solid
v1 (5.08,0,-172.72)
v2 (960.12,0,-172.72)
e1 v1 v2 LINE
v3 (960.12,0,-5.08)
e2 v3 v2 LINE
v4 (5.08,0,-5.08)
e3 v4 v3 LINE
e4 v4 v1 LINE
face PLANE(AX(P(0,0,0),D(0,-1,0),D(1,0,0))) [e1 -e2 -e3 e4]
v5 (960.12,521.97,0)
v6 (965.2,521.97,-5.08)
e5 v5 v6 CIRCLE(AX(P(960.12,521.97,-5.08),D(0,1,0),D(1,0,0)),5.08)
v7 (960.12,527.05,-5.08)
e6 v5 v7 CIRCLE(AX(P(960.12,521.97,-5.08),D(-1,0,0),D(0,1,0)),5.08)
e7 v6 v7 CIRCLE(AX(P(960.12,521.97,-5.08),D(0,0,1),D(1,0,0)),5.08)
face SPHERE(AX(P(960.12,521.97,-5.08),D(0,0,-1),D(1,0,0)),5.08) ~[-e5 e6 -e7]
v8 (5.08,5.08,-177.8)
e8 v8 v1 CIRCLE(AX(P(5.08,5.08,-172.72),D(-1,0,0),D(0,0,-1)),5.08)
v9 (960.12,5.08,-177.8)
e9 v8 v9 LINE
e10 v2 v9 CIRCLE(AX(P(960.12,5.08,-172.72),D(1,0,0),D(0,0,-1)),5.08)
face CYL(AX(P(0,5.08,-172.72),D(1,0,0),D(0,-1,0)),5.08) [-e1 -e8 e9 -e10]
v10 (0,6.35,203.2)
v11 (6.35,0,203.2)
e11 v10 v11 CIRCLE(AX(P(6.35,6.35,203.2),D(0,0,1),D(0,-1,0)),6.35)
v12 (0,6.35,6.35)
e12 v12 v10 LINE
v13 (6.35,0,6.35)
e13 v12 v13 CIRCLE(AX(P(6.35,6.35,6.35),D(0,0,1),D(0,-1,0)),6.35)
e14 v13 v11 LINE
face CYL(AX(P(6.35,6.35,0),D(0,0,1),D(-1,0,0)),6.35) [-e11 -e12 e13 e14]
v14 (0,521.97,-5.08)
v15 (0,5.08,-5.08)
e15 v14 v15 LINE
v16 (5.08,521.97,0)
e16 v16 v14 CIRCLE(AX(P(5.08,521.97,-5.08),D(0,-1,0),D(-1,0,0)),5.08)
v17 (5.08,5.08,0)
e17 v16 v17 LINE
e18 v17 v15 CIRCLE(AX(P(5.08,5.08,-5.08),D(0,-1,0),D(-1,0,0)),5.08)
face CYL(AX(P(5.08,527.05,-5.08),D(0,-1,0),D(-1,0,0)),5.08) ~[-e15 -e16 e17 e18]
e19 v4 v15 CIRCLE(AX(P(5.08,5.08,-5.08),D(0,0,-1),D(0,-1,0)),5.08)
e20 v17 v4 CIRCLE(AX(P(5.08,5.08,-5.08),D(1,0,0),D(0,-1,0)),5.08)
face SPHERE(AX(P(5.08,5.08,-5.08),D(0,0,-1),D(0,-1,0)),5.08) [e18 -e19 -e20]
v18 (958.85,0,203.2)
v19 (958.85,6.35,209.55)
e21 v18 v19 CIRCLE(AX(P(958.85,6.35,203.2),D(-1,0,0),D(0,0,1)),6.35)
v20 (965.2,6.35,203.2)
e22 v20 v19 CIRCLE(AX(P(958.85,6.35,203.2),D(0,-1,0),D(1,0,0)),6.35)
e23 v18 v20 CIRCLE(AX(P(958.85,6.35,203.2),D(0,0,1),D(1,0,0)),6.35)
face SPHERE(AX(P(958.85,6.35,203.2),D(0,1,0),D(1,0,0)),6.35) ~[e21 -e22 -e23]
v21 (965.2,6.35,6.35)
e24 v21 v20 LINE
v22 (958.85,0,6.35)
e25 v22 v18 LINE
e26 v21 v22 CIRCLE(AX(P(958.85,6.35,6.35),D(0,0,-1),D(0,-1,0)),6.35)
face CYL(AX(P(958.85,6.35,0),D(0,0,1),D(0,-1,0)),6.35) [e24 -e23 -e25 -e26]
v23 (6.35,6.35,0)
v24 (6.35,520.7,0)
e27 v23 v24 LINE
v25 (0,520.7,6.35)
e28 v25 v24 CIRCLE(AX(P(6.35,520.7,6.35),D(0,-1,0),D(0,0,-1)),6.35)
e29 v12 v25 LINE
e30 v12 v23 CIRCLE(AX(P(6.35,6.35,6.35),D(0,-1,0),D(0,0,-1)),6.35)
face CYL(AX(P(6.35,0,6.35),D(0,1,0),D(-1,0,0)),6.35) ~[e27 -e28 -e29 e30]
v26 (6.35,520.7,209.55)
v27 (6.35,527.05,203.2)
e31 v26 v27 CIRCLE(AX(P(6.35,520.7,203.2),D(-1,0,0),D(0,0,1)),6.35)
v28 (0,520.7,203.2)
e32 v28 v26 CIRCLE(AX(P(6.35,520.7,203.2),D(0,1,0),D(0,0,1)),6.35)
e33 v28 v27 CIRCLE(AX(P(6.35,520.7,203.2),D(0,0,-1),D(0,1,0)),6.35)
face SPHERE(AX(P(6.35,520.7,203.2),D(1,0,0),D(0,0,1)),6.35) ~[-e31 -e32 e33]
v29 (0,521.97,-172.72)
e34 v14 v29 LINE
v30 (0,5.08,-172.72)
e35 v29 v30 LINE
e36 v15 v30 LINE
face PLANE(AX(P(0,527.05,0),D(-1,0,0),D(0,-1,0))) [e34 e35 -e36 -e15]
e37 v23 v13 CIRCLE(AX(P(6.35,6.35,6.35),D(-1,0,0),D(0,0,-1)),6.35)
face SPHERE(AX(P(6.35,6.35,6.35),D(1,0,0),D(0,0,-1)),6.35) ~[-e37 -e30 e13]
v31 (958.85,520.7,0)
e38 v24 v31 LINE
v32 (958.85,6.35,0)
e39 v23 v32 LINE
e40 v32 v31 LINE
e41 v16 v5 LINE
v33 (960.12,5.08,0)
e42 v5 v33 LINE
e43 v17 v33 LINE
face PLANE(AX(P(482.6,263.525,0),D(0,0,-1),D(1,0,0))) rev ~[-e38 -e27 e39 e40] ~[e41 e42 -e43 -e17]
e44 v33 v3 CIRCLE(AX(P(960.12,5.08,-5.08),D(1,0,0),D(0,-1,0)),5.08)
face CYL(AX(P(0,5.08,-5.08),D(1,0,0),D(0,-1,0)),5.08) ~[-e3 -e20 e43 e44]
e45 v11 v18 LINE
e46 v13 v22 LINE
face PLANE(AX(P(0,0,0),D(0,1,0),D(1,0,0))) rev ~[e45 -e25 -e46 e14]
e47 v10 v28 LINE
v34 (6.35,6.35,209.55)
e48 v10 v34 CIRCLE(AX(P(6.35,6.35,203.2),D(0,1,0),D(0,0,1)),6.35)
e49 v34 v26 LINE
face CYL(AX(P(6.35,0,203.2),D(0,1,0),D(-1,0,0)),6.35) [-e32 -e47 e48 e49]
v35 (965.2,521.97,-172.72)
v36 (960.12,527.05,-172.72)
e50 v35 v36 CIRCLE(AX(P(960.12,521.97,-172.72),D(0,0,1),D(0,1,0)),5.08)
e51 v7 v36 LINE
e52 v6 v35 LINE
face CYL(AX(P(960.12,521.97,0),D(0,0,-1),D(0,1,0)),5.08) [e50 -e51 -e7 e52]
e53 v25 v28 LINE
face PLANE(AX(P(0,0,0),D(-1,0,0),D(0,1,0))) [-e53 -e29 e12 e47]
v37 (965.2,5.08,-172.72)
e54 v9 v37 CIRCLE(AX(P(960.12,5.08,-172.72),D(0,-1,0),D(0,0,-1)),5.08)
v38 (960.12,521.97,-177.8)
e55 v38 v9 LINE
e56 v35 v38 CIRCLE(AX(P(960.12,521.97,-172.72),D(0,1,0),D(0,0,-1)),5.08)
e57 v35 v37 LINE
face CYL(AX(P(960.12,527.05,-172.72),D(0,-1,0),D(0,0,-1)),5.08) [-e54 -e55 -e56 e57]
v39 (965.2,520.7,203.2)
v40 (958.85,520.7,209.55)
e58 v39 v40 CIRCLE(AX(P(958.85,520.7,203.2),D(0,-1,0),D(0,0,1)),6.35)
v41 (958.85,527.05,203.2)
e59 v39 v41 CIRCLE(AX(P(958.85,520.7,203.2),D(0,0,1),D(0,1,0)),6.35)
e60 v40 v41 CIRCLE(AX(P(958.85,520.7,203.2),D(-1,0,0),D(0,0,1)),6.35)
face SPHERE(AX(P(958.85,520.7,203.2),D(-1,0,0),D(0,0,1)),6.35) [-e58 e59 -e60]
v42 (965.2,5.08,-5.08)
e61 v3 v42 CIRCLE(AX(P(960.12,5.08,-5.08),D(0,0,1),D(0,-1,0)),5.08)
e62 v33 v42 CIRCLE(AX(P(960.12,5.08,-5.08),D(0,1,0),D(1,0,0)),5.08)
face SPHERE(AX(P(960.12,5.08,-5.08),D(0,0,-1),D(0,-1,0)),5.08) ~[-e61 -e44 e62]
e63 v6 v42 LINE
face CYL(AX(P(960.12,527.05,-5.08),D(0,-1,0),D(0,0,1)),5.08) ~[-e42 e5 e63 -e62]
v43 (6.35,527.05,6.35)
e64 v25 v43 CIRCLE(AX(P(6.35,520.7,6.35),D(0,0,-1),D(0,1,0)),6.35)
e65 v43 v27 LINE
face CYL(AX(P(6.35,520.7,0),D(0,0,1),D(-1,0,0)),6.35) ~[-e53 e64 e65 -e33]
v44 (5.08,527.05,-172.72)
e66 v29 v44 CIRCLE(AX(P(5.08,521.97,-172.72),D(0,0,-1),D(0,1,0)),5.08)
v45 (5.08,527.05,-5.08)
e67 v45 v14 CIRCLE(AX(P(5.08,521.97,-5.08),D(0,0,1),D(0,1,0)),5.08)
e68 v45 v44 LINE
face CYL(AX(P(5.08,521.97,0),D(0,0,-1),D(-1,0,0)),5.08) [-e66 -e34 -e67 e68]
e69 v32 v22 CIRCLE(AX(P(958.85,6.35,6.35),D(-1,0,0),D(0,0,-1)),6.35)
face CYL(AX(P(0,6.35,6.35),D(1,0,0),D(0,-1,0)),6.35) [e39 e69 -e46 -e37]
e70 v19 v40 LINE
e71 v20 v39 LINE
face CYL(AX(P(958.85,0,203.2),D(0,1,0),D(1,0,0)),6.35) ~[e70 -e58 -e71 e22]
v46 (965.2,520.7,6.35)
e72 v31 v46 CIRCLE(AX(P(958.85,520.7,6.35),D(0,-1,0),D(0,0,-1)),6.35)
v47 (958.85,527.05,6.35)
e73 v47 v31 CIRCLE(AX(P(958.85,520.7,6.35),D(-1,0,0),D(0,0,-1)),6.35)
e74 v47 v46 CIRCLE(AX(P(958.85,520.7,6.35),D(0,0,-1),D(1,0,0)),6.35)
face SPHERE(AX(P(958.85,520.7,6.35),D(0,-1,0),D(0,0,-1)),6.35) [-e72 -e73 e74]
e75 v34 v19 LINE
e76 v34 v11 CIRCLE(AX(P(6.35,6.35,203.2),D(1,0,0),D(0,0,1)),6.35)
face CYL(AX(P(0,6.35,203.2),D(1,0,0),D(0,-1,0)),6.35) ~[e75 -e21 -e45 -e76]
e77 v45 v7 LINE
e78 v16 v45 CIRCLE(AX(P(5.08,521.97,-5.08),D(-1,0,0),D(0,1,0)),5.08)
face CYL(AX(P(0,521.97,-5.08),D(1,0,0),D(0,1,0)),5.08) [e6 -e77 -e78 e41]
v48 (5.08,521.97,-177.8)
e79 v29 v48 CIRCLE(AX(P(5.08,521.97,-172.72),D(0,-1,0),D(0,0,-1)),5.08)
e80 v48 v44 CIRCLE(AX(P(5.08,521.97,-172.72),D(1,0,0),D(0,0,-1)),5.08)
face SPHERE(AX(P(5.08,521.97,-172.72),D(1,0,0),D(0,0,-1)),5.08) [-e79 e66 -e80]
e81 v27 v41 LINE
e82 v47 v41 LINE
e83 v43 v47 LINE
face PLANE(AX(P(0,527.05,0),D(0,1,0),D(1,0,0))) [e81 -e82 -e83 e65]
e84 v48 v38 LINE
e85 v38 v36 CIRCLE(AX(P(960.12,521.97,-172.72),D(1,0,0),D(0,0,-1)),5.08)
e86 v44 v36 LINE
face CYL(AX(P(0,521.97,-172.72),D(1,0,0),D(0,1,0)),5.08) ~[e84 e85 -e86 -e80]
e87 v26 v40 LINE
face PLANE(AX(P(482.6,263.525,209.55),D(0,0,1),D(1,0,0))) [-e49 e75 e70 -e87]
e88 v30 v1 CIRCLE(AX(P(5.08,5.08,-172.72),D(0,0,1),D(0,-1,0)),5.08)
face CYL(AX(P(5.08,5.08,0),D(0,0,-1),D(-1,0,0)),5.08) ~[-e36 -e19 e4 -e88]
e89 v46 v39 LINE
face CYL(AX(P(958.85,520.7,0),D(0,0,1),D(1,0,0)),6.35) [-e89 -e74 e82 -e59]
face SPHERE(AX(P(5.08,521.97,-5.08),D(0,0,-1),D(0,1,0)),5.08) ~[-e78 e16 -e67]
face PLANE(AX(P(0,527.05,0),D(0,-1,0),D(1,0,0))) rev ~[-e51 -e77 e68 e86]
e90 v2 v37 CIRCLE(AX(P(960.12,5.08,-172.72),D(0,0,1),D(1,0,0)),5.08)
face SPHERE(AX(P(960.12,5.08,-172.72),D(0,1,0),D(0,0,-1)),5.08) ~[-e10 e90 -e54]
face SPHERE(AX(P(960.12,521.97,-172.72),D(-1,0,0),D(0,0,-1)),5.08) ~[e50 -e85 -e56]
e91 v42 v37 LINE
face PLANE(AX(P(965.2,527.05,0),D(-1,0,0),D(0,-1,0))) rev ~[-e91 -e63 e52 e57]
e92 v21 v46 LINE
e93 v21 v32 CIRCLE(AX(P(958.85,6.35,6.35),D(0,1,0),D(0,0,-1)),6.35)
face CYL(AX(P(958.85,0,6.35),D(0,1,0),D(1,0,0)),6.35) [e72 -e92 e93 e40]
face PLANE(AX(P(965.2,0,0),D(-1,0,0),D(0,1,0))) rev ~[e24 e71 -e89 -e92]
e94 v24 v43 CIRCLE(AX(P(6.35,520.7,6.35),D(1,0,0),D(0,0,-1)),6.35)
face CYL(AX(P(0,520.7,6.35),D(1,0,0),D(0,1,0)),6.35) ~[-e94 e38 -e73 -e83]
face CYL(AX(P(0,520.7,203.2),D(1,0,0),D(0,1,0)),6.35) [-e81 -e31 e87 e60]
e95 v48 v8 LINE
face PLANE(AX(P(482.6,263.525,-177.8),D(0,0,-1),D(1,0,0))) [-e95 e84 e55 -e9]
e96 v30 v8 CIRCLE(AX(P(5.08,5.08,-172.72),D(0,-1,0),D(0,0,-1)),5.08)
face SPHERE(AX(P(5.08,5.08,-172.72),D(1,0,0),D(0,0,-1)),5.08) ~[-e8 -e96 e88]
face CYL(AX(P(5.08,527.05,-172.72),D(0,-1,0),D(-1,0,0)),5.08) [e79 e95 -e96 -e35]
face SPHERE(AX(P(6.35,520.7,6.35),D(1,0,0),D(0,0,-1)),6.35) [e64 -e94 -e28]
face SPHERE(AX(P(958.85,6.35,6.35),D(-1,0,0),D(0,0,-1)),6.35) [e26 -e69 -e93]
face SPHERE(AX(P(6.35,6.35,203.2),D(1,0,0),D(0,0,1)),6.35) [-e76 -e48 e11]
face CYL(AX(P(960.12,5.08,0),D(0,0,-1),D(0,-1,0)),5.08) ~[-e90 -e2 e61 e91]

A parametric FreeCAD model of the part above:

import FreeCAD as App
import Part
import Sketcher

V = App.Vector
Q = App.Units.Quantity


def edges_at(feature, points):
    """Names of the edges that pass closest to the given points."""
    edges = feature.Shape.Edges
    near = lambda p: min(range(len(edges)), key=lambda i: edges[i].distToShape(Part.Vertex(*p))[0])
    return sorted({f"Edge{near(p) + 1}" for p in points})


def add_polygon(sketch, points):
    """Adds a closed chain of lines whose ends are joined by coincident constraints."""
    first, n = sketch.GeometryCount, len(points)
    for a, b in zip(points, points[1:] + points[:1]):
        sketch.addGeometry(Part.LineSegment(App.Vector(*a, 0), App.Vector(*b, 0)), False)
    for i in range(n):
        sketch.addConstraint(Sketcher.Constraint("Coincident", first + i, 2, first + (i + 1) % n, 1))

doc = App.newDocument("Part")
params = doc.addObject("Spreadsheet::Sheet", "Params")
for row, (alias, value) in enumerate([
    ("sketch1_width", "38 in"),
    ("sketch1_height", "20.75 in"),
    ("pad1_length", "8.25 in"),
    ("fillet_radius", "0.25 in"),
    ("sketch2_width", "38 in"),
    ("sketch2_height", "20.75 in"),
    ("pad2_length", "7 in"),
    ("fillet2_radius", "0.2 in"),
], start=1):
    params.set(f"A{row}", alias)
    params.set(f"B{row}", "=" + value)
    params.setAlias(f"B{row}", alias)

body = doc.addObject("PartDesign::Body", "Body")

sketch1 = body.newObject("Sketcher::SketchObject", "Sketch")
sketch1.AttachmentSupport = (doc.getObject("XY_Plane"), [""])
sketch1.MapMode = "FlatFace"
add_polygon(sketch1, [(0, 527), (0, 0), (965, 0), (965, 527)])
sketch1.addConstraint(Sketcher.Constraint("Vertical", 0))
sketch1.addConstraint(Sketcher.Constraint("Horizontal", 1))
sketch1.addConstraint(Sketcher.Constraint("Vertical", 2))
sketch1.addConstraint(Sketcher.Constraint("Horizontal", 3))
sketch1.addConstraint(Sketcher.Constraint("Coincident", 0, 2, -1, 1))
sketch1.addConstraint(Sketcher.Constraint("DistanceX", 1, 1, 1, 2, Q("38 in")))
sketch1.addConstraint(Sketcher.Constraint("DistanceY", 0, 2, 0, 1, Q("20.75 in")))
sketch1.setExpression("Constraints[9]", "Params.sketch1_width")
sketch1.setExpression("Constraints[10]", "Params.sketch1_height")
pad1 = body.newObject("PartDesign::Pad", "Pad")
pad1.Profile = sketch1
pad1.setExpression("Length", "Params.pad1_length")
doc.recompute()

fillet = body.newObject("PartDesign::Fillet", "Fillet")
fillet.Base = (pad1, ["Edge1"])
fillet.UseAllEdges = True
fillet.setExpression("Radius", "Params.fillet_radius")

sketch2 = body.newObject("Sketcher::SketchObject", "Sketch001")
sketch2.AttachmentSupport = (doc.getObject("XY_Plane"), [""])
sketch2.MapMode = "FlatFace"
add_polygon(sketch2, [(0, 0), (0, 527), (965, 527), (965, 0)])
sketch2.addConstraint(Sketcher.Constraint("Vertical", 0))
sketch2.addConstraint(Sketcher.Constraint("Horizontal", 1))
sketch2.addConstraint(Sketcher.Constraint("Vertical", 2))
sketch2.addConstraint(Sketcher.Constraint("Horizontal", 3))
sketch2.addConstraint(Sketcher.Constraint("Coincident", 3, 2, -1, 1))
sketch2.addConstraint(Sketcher.Constraint("DistanceX", 1, 1, 1, 2, Q("38 in")))
sketch2.addConstraint(Sketcher.Constraint("DistanceY", 0, 1, 0, 2, Q("20.75 in")))
sketch2.setExpression("Constraints[9]", "Params.sketch2_width")
sketch2.setExpression("Constraints[10]", "Params.sketch2_height")
pad2 = body.newObject("PartDesign::Pad", "Pad001")
pad2.Profile = sketch2
pad2.setExpression("Length", "Params.pad2_length")
pad2.Reversed = True
doc.recompute()

fillet2 = body.newObject("PartDesign::Fillet", "Fillet001")
fillet2.Base = (pad2, edges_at(pad2, [
    (482.6, 527.05, -177.8),
    (965.2, 263.525, -177.8),
    (482.6, 0, -177.8),
    (0, 263.525, -177.8),
    (965.2, 0, -88.9),
    (0, 0, -88.9),
    (482.6, 0, 0),
    (965.2, 527.05, -88.9),
    (965.2, 263.525, 0),
    (0, 527.05, -88.9),
    (482.6, 527.05, 0),
    (0, 263.525, 0),
]))
fillet2.setExpression("Radius", "Params.fillet2_radius")

doc.recompute()
